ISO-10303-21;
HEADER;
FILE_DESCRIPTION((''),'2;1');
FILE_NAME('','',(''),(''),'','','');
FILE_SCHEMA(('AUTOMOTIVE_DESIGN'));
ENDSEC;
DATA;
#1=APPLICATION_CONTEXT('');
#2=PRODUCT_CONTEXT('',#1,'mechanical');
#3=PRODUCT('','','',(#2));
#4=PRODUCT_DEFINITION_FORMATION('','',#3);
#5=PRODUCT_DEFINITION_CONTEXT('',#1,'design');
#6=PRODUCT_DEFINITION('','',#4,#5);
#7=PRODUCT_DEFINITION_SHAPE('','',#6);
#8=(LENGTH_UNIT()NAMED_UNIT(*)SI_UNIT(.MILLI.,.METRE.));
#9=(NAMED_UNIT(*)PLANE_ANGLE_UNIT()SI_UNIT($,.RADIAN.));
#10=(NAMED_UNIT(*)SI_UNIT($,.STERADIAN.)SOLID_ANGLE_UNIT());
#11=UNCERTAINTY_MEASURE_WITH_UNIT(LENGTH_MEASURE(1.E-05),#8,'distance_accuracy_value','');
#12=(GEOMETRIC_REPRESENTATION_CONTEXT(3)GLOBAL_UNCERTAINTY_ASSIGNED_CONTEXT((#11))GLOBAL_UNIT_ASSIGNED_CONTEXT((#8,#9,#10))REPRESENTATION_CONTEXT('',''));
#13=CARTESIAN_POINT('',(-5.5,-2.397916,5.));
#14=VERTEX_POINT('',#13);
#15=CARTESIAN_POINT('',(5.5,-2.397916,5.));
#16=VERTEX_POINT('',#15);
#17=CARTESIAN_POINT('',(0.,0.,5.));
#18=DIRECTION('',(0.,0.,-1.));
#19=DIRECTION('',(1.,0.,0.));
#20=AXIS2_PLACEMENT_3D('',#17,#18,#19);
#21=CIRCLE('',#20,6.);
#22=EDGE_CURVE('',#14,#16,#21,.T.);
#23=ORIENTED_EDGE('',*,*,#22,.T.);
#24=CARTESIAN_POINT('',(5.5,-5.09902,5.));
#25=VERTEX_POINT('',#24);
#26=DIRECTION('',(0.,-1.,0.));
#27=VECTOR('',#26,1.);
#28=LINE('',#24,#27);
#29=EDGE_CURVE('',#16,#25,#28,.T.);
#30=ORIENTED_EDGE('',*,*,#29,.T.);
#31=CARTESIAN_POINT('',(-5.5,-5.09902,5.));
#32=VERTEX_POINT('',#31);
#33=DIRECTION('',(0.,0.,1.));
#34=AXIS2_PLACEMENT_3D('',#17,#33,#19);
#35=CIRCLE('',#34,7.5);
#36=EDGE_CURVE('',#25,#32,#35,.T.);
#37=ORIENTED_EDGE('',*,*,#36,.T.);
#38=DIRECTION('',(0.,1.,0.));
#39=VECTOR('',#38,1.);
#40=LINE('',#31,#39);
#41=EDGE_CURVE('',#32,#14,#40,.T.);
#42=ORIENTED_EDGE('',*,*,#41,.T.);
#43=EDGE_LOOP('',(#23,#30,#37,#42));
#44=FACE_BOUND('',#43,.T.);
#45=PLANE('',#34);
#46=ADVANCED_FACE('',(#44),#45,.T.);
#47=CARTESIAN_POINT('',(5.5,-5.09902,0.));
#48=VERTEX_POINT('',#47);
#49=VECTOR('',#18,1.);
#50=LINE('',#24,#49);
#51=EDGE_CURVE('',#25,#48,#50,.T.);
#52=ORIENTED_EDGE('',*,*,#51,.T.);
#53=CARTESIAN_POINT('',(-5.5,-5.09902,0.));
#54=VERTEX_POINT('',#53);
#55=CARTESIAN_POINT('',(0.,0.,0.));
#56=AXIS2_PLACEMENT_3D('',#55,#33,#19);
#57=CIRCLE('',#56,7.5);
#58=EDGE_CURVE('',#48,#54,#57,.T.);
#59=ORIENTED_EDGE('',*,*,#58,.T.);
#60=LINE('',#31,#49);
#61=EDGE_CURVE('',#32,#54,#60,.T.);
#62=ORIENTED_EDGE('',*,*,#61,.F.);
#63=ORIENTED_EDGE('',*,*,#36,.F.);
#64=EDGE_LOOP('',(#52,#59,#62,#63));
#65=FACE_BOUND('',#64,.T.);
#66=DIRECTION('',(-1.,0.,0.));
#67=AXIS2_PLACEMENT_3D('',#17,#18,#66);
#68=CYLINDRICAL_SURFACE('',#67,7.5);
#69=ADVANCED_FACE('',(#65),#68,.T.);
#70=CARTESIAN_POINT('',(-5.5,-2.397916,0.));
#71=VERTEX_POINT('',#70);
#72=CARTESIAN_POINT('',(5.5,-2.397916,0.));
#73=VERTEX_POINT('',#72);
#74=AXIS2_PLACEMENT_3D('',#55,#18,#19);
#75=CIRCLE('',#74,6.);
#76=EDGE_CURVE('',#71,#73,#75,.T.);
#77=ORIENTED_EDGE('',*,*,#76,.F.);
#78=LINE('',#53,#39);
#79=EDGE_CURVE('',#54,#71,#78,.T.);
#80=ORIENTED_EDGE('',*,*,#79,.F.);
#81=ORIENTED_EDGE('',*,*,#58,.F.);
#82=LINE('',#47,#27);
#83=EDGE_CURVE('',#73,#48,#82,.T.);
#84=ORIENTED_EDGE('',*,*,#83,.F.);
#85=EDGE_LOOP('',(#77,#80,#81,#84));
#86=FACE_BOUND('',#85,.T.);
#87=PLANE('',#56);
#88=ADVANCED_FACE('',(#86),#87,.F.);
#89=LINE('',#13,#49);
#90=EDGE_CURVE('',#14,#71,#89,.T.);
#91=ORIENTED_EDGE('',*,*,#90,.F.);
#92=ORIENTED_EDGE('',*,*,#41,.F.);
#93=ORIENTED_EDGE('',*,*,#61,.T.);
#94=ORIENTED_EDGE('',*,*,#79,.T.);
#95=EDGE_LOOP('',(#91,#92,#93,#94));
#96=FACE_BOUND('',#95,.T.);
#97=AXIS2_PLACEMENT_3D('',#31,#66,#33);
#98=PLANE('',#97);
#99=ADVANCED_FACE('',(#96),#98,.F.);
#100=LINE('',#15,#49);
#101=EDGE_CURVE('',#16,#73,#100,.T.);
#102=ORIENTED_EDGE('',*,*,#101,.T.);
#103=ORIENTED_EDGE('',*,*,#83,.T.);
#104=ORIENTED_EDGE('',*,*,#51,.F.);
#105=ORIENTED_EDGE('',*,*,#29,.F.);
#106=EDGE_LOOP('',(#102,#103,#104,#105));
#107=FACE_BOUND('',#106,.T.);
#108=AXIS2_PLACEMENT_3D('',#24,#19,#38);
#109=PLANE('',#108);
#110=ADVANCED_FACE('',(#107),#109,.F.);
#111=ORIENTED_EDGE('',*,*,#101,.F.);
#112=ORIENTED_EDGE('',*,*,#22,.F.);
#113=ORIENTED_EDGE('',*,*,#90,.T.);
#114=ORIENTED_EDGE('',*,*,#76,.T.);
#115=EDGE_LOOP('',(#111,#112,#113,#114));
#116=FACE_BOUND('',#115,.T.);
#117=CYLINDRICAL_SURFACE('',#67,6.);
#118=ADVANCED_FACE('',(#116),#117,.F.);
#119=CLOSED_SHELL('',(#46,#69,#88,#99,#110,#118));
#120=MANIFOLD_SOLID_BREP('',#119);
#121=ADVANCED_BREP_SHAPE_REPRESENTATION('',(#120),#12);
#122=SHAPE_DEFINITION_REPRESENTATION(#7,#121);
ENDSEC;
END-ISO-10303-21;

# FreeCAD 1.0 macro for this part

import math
import FreeCAD as App
import Part
import Sketcher
from FreeCAD import Vector

doc = App.newDocument("Part")
body = doc.addObject("PartDesign::Body", "Body")

# Sketch on XY plane
sketch1 = body.newObject("Sketcher::SketchObject", "Sketch")
sketch1.AttachmentSupport = (doc.getObject("XY_Plane"), [""])
sketch1.MapMode = "FlatFace"
sketch1.addGeometry(Part.LineSegment(Vector(5.5, -2.4, 0), Vector(5.5, -5.1, 0)), False)
sketch1.addGeometry(Part.ArcOfCircle(Part.Circle(Vector(0, 0, 0), Vector(0, 0, 1), 7.5), math.radians(-43), math.radians(223)), False)
sketch1.addGeometry(Part.LineSegment(Vector(-5.5, -5.1, 0), Vector(-5.5, -2.4, 0)), False)
sketch1.addGeometry(Part.ArcOfCircle(Part.Circle(Vector(0, 0, 0), Vector(0, 0, 1), 6), math.radians(-24), math.radians(204)), False)
sketch1.addConstraint(Sketcher.Constraint("Coincident", 0, 2, 1, 1))
sketch1.addConstraint(Sketcher.Constraint("Coincident", 1, 2, 2, 1))
sketch1.addConstraint(Sketcher.Constraint("Coincident", 2, 2, 3, 2))
sketch1.addConstraint(Sketcher.Constraint("Coincident", 3, 1, 0, 1))
sketch1.addConstraint(Sketcher.Constraint("Vertical", 0))
sketch1.addConstraint(Sketcher.Constraint("Vertical", 2))
sketch1.addConstraint(Sketcher.Constraint("Coincident", 1, 3, -1, 1))
sketch1.addConstraint(Sketcher.Constraint("Coincident", 3, 3, -1, 1))
sketch1.addConstraint(Sketcher.Constraint("Horizontal", 0, 2, 1, 2))
sketch1.addConstraint(Sketcher.Constraint("Radius", 3, 6.0))
sketch1.addConstraint(Sketcher.Constraint("Radius", 1, 7.5))
sketch1.addConstraint(Sketcher.Constraint("DistanceX", 1, 2, 0, 2, 11.0))
pad1 = body.newObject("PartDesign::Pad", "Pad")
pad1.Profile = sketch1
pad1.Length = 5

doc.recompute()
